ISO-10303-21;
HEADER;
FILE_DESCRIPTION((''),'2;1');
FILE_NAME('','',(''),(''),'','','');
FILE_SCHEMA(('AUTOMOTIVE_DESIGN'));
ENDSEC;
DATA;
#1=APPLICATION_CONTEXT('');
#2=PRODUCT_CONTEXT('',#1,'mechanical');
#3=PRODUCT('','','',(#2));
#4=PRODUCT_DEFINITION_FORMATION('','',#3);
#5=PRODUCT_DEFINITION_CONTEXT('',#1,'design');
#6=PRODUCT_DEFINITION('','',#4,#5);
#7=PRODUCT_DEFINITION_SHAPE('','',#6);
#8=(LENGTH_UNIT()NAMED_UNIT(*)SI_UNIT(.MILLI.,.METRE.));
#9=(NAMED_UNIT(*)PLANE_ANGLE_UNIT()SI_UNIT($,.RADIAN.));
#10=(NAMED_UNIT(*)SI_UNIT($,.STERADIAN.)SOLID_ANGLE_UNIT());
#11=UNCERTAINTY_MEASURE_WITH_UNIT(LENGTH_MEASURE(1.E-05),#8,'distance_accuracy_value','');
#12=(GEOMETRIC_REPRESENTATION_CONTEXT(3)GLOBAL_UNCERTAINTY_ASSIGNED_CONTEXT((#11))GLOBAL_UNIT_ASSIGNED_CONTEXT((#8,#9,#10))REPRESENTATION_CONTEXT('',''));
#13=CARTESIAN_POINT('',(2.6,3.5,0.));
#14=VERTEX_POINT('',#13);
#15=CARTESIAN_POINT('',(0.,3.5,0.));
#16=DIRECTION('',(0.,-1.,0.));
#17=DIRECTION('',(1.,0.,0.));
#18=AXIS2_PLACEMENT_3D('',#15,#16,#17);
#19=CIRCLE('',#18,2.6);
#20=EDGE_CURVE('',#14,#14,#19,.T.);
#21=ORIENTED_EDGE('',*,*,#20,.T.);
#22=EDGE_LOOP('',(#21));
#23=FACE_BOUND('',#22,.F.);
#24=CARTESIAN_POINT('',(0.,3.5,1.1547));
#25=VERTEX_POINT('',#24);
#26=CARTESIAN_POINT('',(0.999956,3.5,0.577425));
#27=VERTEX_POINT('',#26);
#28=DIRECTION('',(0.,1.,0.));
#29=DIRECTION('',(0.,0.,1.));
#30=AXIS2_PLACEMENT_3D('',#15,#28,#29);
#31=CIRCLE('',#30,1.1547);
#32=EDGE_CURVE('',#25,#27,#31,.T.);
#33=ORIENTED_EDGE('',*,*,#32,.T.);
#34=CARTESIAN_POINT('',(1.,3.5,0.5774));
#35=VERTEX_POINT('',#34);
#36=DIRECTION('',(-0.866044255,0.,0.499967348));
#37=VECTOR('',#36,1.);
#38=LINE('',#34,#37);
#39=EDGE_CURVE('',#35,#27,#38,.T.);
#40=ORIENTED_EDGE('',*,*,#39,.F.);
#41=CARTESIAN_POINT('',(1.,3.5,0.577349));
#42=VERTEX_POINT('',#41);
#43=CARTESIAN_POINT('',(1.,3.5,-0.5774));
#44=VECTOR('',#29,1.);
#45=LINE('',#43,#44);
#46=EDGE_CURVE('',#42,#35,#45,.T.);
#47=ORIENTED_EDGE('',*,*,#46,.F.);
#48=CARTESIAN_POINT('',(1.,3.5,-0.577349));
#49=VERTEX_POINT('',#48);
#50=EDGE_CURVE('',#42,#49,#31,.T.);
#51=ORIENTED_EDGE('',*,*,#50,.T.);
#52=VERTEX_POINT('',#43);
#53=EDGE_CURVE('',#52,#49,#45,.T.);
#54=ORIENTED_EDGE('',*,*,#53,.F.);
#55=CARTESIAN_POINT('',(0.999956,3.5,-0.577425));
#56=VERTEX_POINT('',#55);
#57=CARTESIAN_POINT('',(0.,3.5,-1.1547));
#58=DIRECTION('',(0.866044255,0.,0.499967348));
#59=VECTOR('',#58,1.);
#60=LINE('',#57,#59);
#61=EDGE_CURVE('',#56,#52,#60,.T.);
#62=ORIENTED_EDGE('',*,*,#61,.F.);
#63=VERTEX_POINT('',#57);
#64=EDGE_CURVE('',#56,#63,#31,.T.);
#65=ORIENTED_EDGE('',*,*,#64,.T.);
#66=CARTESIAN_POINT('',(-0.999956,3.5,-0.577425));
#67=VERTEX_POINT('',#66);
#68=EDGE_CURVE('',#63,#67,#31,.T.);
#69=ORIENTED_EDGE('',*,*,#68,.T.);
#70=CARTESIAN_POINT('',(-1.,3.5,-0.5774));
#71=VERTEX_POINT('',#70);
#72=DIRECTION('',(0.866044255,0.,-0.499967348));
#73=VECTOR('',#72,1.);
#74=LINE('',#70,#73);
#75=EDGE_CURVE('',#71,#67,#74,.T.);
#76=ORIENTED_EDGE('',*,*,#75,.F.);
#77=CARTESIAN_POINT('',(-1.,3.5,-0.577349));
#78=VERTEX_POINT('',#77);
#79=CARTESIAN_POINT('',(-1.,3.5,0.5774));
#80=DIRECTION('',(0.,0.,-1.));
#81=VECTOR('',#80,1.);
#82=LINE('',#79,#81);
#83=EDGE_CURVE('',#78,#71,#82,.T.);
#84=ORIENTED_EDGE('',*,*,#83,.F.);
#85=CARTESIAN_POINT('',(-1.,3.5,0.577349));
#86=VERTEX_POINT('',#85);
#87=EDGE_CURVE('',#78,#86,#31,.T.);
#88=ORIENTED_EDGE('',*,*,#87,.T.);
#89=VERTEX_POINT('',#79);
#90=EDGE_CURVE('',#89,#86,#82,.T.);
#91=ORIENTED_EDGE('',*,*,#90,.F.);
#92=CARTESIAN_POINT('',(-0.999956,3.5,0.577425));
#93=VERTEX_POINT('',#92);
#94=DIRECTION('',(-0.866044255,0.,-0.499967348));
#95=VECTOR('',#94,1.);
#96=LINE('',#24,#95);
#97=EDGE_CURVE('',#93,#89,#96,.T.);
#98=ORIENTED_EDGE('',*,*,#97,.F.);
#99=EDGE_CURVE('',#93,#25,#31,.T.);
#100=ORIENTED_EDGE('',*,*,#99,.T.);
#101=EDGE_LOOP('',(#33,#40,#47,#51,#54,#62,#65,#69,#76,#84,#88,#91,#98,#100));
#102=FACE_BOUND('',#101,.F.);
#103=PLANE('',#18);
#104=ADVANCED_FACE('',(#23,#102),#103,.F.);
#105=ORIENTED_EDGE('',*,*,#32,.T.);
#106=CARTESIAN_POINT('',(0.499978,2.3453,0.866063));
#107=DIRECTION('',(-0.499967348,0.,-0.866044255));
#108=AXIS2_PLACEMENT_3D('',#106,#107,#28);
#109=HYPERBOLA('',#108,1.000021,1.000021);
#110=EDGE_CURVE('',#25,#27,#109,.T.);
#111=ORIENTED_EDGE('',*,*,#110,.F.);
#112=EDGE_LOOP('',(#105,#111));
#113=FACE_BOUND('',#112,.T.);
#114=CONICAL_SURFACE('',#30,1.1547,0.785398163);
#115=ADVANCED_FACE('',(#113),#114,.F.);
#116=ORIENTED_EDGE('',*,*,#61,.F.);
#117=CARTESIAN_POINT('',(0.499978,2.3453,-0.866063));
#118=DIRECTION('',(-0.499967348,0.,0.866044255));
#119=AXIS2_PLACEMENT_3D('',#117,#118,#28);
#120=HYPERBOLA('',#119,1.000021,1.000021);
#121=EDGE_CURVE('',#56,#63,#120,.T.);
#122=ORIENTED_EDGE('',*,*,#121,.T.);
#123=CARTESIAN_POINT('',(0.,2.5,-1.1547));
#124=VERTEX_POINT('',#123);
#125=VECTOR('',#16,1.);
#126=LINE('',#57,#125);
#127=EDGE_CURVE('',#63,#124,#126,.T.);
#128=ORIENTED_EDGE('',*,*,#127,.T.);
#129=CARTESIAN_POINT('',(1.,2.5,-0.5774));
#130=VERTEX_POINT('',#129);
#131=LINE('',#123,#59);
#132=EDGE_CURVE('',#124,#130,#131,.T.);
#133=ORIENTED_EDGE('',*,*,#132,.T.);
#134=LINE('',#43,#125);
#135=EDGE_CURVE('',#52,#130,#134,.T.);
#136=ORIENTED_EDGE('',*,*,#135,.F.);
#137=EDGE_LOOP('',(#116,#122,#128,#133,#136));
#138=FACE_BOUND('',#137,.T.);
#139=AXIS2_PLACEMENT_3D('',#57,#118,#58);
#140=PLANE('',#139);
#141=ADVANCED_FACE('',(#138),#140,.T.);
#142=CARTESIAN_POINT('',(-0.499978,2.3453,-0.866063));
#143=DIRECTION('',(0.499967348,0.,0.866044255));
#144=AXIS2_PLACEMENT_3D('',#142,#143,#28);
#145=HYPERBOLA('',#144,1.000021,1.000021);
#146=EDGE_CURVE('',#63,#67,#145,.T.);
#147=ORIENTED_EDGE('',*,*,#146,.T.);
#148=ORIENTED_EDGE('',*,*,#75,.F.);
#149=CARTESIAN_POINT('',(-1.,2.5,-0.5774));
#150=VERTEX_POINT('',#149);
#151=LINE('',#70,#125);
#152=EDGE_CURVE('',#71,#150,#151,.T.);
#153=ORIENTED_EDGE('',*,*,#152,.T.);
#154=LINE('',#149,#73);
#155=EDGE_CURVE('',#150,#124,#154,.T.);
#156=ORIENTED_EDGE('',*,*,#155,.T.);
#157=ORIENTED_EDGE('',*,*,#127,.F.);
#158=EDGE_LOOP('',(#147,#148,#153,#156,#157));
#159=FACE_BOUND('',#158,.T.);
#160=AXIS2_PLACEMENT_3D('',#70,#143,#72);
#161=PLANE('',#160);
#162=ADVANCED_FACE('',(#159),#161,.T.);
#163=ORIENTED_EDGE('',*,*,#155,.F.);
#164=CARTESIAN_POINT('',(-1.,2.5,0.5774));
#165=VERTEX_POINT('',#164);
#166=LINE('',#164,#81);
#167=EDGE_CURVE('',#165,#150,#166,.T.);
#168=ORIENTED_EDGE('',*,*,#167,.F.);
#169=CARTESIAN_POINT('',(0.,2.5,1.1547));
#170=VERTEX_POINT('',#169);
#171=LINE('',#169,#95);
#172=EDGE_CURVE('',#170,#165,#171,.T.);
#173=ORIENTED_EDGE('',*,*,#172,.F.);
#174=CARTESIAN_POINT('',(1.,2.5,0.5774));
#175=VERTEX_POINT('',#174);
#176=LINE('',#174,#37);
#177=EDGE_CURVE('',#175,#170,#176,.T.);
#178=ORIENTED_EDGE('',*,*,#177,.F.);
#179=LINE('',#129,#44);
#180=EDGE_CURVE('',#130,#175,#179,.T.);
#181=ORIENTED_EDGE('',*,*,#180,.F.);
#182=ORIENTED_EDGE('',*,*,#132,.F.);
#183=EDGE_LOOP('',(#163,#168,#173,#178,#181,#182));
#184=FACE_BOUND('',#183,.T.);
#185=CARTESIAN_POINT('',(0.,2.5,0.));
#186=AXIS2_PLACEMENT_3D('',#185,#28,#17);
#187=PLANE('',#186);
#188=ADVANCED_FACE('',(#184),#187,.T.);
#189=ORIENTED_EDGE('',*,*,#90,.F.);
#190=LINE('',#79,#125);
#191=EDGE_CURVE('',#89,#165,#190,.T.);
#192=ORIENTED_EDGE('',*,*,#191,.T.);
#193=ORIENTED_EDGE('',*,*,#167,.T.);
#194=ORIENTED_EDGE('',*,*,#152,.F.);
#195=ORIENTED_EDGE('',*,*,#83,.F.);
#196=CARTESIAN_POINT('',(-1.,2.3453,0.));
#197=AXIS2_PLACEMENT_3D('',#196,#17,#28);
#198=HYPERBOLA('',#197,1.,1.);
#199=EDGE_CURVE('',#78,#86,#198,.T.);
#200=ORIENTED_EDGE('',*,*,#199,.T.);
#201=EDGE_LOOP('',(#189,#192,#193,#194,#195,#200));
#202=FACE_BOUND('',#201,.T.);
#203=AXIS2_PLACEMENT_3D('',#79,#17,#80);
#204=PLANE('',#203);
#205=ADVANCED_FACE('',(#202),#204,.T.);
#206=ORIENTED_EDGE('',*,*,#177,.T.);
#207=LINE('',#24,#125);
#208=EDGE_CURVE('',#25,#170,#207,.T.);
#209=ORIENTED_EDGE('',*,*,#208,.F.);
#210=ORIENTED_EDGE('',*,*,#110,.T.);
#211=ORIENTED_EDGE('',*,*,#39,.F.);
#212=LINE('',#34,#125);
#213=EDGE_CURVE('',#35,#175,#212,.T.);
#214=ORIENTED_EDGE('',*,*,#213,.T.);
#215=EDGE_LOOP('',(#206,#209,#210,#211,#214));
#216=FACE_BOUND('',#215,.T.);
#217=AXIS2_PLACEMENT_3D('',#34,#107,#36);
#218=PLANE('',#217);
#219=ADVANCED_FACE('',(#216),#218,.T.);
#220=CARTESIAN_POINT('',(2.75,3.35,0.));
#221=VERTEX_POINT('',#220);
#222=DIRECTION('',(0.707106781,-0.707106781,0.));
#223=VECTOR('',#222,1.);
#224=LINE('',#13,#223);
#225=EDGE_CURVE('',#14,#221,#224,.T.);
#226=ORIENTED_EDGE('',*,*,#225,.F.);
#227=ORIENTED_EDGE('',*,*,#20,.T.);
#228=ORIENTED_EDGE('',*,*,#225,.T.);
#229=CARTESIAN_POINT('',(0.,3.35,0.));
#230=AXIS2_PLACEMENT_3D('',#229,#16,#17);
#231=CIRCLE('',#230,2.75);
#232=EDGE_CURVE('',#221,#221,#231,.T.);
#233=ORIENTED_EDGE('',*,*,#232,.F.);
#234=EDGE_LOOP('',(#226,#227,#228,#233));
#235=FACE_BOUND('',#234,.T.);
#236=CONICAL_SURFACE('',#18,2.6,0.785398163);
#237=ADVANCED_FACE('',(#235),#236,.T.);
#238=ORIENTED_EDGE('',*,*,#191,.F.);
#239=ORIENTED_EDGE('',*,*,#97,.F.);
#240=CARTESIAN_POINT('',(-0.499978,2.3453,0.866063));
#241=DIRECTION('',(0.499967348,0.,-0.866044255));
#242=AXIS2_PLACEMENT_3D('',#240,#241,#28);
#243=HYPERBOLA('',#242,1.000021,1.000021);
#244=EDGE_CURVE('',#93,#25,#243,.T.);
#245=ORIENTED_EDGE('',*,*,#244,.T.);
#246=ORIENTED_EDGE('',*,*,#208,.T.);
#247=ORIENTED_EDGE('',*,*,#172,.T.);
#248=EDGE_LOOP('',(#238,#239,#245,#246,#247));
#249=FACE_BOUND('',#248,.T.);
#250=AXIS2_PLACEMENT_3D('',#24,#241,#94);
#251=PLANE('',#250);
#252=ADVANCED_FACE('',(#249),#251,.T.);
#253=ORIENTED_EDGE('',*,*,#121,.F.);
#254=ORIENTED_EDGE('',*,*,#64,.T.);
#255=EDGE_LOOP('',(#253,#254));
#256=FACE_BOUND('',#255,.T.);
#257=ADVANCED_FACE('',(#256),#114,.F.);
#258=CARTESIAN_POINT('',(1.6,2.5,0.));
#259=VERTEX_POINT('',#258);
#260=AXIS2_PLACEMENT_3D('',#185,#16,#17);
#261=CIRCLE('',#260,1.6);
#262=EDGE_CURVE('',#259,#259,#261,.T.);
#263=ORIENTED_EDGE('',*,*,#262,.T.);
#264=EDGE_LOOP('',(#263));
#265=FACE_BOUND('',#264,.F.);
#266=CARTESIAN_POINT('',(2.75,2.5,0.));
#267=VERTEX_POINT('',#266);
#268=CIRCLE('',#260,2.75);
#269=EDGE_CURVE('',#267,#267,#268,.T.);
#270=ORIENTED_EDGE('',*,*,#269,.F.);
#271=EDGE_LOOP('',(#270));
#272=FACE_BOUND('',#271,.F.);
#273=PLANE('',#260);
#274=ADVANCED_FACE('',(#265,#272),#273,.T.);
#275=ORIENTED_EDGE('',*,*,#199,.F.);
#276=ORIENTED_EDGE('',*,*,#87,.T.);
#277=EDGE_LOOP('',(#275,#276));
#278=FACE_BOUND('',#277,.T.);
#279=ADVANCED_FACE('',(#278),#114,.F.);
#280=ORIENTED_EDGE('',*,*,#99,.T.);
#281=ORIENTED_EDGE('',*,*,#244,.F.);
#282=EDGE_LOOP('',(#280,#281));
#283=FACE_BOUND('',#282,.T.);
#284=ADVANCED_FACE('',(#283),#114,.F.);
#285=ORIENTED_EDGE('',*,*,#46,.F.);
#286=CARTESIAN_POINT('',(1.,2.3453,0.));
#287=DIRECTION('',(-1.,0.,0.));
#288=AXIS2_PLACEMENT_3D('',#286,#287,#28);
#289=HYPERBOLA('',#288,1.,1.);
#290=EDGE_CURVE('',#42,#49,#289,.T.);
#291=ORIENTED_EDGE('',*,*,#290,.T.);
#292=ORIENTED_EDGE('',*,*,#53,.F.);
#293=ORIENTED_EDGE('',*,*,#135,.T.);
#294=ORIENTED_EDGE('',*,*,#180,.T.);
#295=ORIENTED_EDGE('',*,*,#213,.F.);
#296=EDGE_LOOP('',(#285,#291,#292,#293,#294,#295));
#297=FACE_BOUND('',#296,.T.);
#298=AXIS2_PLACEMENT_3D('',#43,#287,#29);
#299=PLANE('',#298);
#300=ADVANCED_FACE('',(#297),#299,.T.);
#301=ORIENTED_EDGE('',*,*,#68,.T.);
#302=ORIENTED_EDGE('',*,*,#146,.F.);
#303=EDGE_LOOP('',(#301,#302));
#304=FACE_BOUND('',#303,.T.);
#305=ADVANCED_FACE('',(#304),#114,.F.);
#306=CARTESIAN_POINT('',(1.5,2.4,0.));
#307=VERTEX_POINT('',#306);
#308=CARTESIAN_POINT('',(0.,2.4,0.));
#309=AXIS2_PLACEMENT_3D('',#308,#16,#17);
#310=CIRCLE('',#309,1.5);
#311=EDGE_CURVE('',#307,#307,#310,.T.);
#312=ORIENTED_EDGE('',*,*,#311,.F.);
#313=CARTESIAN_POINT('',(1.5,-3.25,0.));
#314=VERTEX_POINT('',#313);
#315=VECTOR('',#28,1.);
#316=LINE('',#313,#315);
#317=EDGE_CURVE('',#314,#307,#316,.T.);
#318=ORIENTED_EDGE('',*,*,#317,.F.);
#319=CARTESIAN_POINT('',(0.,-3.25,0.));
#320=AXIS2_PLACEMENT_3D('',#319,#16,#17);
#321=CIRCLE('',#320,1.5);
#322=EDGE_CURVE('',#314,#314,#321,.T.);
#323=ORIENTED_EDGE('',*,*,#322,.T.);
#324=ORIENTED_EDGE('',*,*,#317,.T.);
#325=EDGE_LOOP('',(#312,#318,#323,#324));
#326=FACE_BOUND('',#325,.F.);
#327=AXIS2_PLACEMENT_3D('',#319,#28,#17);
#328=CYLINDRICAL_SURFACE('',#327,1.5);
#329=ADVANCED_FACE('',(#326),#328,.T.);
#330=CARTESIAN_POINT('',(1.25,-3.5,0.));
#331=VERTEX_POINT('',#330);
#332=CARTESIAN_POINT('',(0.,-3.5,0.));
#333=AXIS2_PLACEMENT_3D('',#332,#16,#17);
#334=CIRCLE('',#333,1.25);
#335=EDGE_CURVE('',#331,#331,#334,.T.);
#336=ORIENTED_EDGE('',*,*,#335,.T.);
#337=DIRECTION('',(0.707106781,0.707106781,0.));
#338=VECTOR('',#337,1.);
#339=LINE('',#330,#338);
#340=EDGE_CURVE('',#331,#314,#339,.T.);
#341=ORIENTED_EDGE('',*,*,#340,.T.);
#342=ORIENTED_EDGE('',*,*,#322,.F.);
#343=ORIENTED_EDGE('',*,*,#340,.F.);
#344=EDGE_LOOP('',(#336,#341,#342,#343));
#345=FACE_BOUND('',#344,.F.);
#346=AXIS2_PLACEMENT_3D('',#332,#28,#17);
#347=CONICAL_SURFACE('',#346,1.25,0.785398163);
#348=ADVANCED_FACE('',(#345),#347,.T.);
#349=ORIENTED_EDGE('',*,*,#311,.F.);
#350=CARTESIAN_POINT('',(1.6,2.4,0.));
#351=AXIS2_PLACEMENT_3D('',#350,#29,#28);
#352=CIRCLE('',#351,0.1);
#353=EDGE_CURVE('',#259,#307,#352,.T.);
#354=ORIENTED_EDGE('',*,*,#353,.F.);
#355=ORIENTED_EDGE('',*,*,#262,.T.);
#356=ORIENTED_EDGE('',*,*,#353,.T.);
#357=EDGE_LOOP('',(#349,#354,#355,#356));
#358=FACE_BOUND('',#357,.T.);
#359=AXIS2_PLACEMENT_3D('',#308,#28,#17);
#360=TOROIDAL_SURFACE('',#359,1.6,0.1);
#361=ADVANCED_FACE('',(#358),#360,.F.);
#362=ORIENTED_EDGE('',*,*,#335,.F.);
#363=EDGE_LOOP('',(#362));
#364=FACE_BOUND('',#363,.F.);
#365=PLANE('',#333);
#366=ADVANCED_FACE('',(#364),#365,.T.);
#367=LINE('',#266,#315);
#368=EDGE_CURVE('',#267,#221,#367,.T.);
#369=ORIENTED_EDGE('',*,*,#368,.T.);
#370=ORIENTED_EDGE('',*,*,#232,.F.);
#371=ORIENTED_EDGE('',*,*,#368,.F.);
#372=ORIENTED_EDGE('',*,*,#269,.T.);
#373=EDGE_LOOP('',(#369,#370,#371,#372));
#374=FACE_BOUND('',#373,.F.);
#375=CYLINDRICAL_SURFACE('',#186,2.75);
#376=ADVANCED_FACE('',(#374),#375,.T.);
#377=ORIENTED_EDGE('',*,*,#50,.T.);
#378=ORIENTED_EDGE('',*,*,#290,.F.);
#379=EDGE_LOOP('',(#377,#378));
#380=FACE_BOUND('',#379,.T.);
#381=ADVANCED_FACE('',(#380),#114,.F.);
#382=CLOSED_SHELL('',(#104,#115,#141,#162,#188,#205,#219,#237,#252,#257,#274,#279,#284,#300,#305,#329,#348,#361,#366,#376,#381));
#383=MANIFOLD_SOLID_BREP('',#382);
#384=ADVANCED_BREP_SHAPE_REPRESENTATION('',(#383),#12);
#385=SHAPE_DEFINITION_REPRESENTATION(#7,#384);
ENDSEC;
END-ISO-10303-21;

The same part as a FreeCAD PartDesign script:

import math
import FreeCAD as App
import Part
import Sketcher
from FreeCAD import Vector
Q = App.Units.Quantity

doc = App.newDocument("Part")
body = doc.addObject("PartDesign::Body", "Body")

sketch1 = body.newObject("Sketcher::SketchObject", "Sketch")
sketch1.AttachmentSupport = (doc.getObject("XY_Plane"), [""])
sketch1.MapMode = "FlatFace"
sketch1.addGeometry(Part.LineSegment(Vector(2.6, 3.5, 0), Vector(0, 3.5, 0)), False)
sketch1.addGeometry(Part.LineSegment(Vector(0, 3.5, 0), Vector(0, -3.5, 0)), False)
sketch1.addGeometry(Part.LineSegment(Vector(0, -3.5, 0), Vector(1.25, -3.5, 0)), False)
sketch1.addGeometry(Part.LineSegment(Vector(1.25, -3.5, 0), Vector(1.5, -3.25, 0)), False)
sketch1.addGeometry(Part.LineSegment(Vector(1.5, -3.25, 0), Vector(1.5, 2.4, 0)), False)
sketch1.addGeometry(Part.ArcOfCircle(Part.Circle(Vector(1.6, 2.4, 0), Vector(0, 0, 1), 0.1), math.radians(90), math.radians(180)), False)
sketch1.addGeometry(Part.LineSegment(Vector(1.6, 2.5, 0), Vector(2.75, 2.5, 0)), False)
sketch1.addGeometry(Part.LineSegment(Vector(2.75, 2.5, 0), Vector(2.75, 3.35, 0)), False)
sketch1.addGeometry(Part.LineSegment(Vector(2.75, 3.35, 0), Vector(2.6, 3.5, 0)), False)
sketch1.addConstraint(Sketcher.Constraint("Coincident", 0, 2, 1, 1))
sketch1.addConstraint(Sketcher.Constraint("Coincident", 1, 2, 2, 1))
sketch1.addConstraint(Sketcher.Constraint("Coincident", 2, 2, 3, 1))
sketch1.addConstraint(Sketcher.Constraint("Coincident", 3, 2, 4, 1))
sketch1.addConstraint(Sketcher.Constraint("Tangent", 4, 2, 5, 2))
sketch1.addConstraint(Sketcher.Constraint("Tangent", 5, 1, 6, 1))
sketch1.addConstraint(Sketcher.Constraint("Coincident", 6, 2, 7, 1))
sketch1.addConstraint(Sketcher.Constraint("Coincident", 7, 2, 8, 1))
sketch1.addConstraint(Sketcher.Constraint("Coincident", 8, 2, 0, 1))
sketch1.addConstraint(Sketcher.Constraint("Horizontal", 0))
sketch1.addConstraint(Sketcher.Constraint("Vertical", 1))
sketch1.addConstraint(Sketcher.Constraint("Horizontal", 2))
sketch1.addConstraint(Sketcher.Constraint("Vertical", 4))
sketch1.addConstraint(Sketcher.Constraint("Horizontal", 6))
sketch1.addConstraint(Sketcher.Constraint("Vertical", 7))
sketch1.addConstraint(Sketcher.Constraint("Symmetric", 0, 2, 1, 2, -1, 1))
sketch1.addConstraint(Sketcher.Constraint("Perpendicular", 3, 8))
sketch1.addConstraint(Sketcher.Constraint("Angle", 8, Q("135 deg")))
sketch1.addConstraint(Sketcher.Constraint("DistanceY", 5, 1, 0, 2, Q("1 mm")))
sketch1.addConstraint(Sketcher.Constraint("DistanceY", 2, 2, 5, 1, Q("6 mm")))
sketch1.addConstraint(Sketcher.Constraint("DistanceX", 5, 1, 8, 2, Q("1 mm")))
sketch1.addConstraint(Sketcher.Constraint("Radius", 5, Q("0.1 mm")))
sketch1.addConstraint(Sketcher.Constraint("DistanceX", 2, 2, 3, 2, Q("0.25 mm")))
sketch1.addConstraint(Sketcher.Constraint("DistanceY", 7, 2, 0, 2, Q("0.15 mm")))
sketch1.addConstraint(Sketcher.Constraint("DistanceX", 0, 2, 0, 1, Q("2.6 mm")))
revolution = body.newObject("PartDesign::Revolution", "Revolution")
revolution.Profile = sketch1
revolution.ReferenceAxis = (sketch1, ["V_Axis"])
revolution.Angle = 360

sketch2 = body.newObject("Sketcher::SketchObject", "Sketch001")
sketch2.AttachmentSupport = (doc.getObject("XZ_Plane"), [""])
sketch2.MapMode = "FlatFace"
sketch2.AttachmentOffset = App.Placement(Vector(0, 0, -3.5), App.Rotation())
sketch2.addGeometry(Part.LineSegment(Vector(-1, 0.6, 0), Vector(0, 1.2, 0)), False)
sketch2.addGeometry(Part.LineSegment(Vector(0, 1.2, 0), Vector(1, 0.6, 0)), False)
sketch2.addGeometry(Part.LineSegment(Vector(1, 0.6, 0), Vector(1, -0.6, 0)), False)
sketch2.addGeometry(Part.LineSegment(Vector(1, -0.6, 0), Vector(0, -1.2, 0)), False)
sketch2.addGeometry(Part.LineSegment(Vector(0, -1.2, 0), Vector(-1, -0.6, 0)), False)
sketch2.addGeometry(Part.LineSegment(Vector(-1, -0.6, 0), Vector(-1, 0.6, 0)), False)
sketch2.addConstraint(Sketcher.Constraint("Coincident", 0, 2, 1, 1))
sketch2.addConstraint(Sketcher.Constraint("Coincident", 1, 2, 2, 1))
sketch2.addConstraint(Sketcher.Constraint("Coincident", 2, 2, 3, 1))
sketch2.addConstraint(Sketcher.Constraint("Coincident", 3, 2, 4, 1))
sketch2.addConstraint(Sketcher.Constraint("Coincident", 4, 2, 5, 1))
sketch2.addConstraint(Sketcher.Constraint("Coincident", 5, 2, 0, 1))
sketch2.addConstraint(Sketcher.Constraint("Vertical", 2))
sketch2.addConstraint(Sketcher.Constraint("Vertical", 5))
sketch2.addConstraint(Sketcher.Constraint("Symmetric", 0, 2, 3, 2, -1, 1))
sketch2.addConstraint(Sketcher.Constraint("Symmetric", 1, 2, 4, 2, -1, 1))
sketch2.addConstraint(Sketcher.Constraint("PointOnObject", 0, 2, -2))
sketch2.addConstraint(Sketcher.Constraint("Parallel", 0, 3))
sketch2.addConstraint(Sketcher.Constraint("Horizontal", 2, 2, 4, 2))
sketch2.addConstraint(Sketcher.Constraint("DistanceX", 4, 2, 2, 2, Q("2 mm")))
sketch2.addConstraint(Sketcher.Constraint("DistanceY", 2, 2, 2, 1, Q("1.1548 mm")))
sketch2.addConstraint(Sketcher.Constraint("DistanceY", 2, 2, 0, 2, Q("1.732 mm")))
pocket1 = body.newObject("PartDesign::Pocket", "Pocket")
pocket1.Profile = sketch2
pocket1.Length = 1
pocket1.Reversed = True

sketch3 = body.newObject("Sketcher::SketchObject", "Sketch002")
sketch3.AttachmentSupport = (doc.getObject("YZ_Plane"), [""])
sketch3.MapMode = "FlatFace"
sketch3.addGeometry(Part.LineSegment(Vector(3.5, 0.7, 0), Vector(3.5, 1.2, 0)), False)
sketch3.addGeometry(Part.LineSegment(Vector(3.5, 1.2, 0), Vector(3, 0.7, 0)), False)
sketch3.addGeometry(Part.LineSegment(Vector(3, 0.7, 0), Vector(3.5, 0.7, 0)), False)
sketch3.addConstraint(Sketcher.Constraint("Coincident", 0, 2, 1, 1))
sketch3.addConstraint(Sketcher.Constraint("Coincident", 1, 2, 2, 1))
sketch3.addConstraint(Sketcher.Constraint("Coincident", 2, 2, 0, 1))
sketch3.addConstraint(Sketcher.Constraint("Vertical", 0))
sketch3.addConstraint(Sketcher.Constraint("Horizontal", 2))
sketch3.addConstraint(Sketcher.Constraint("Equal", 2, 0))
sketch3.addConstraint(Sketcher.Constraint("DistanceX", 2, 1, 2, 2, Q("0.5 mm")))
sketch3.addConstraint(Sketcher.Constraint("DistanceX", -1, 1, 1, 2, Q("3 mm")))
sketch3.addConstraint(Sketcher.Constraint("DistanceY", -1, 1, 0, 2, Q("1.1547 mm")))
groove = body.newObject("PartDesign::Groove", "Groove")
groove.Profile = sketch3
groove.ReferenceAxis = (sketch3, ["H_Axis"])
groove.Angle = 360

doc.recompute()
